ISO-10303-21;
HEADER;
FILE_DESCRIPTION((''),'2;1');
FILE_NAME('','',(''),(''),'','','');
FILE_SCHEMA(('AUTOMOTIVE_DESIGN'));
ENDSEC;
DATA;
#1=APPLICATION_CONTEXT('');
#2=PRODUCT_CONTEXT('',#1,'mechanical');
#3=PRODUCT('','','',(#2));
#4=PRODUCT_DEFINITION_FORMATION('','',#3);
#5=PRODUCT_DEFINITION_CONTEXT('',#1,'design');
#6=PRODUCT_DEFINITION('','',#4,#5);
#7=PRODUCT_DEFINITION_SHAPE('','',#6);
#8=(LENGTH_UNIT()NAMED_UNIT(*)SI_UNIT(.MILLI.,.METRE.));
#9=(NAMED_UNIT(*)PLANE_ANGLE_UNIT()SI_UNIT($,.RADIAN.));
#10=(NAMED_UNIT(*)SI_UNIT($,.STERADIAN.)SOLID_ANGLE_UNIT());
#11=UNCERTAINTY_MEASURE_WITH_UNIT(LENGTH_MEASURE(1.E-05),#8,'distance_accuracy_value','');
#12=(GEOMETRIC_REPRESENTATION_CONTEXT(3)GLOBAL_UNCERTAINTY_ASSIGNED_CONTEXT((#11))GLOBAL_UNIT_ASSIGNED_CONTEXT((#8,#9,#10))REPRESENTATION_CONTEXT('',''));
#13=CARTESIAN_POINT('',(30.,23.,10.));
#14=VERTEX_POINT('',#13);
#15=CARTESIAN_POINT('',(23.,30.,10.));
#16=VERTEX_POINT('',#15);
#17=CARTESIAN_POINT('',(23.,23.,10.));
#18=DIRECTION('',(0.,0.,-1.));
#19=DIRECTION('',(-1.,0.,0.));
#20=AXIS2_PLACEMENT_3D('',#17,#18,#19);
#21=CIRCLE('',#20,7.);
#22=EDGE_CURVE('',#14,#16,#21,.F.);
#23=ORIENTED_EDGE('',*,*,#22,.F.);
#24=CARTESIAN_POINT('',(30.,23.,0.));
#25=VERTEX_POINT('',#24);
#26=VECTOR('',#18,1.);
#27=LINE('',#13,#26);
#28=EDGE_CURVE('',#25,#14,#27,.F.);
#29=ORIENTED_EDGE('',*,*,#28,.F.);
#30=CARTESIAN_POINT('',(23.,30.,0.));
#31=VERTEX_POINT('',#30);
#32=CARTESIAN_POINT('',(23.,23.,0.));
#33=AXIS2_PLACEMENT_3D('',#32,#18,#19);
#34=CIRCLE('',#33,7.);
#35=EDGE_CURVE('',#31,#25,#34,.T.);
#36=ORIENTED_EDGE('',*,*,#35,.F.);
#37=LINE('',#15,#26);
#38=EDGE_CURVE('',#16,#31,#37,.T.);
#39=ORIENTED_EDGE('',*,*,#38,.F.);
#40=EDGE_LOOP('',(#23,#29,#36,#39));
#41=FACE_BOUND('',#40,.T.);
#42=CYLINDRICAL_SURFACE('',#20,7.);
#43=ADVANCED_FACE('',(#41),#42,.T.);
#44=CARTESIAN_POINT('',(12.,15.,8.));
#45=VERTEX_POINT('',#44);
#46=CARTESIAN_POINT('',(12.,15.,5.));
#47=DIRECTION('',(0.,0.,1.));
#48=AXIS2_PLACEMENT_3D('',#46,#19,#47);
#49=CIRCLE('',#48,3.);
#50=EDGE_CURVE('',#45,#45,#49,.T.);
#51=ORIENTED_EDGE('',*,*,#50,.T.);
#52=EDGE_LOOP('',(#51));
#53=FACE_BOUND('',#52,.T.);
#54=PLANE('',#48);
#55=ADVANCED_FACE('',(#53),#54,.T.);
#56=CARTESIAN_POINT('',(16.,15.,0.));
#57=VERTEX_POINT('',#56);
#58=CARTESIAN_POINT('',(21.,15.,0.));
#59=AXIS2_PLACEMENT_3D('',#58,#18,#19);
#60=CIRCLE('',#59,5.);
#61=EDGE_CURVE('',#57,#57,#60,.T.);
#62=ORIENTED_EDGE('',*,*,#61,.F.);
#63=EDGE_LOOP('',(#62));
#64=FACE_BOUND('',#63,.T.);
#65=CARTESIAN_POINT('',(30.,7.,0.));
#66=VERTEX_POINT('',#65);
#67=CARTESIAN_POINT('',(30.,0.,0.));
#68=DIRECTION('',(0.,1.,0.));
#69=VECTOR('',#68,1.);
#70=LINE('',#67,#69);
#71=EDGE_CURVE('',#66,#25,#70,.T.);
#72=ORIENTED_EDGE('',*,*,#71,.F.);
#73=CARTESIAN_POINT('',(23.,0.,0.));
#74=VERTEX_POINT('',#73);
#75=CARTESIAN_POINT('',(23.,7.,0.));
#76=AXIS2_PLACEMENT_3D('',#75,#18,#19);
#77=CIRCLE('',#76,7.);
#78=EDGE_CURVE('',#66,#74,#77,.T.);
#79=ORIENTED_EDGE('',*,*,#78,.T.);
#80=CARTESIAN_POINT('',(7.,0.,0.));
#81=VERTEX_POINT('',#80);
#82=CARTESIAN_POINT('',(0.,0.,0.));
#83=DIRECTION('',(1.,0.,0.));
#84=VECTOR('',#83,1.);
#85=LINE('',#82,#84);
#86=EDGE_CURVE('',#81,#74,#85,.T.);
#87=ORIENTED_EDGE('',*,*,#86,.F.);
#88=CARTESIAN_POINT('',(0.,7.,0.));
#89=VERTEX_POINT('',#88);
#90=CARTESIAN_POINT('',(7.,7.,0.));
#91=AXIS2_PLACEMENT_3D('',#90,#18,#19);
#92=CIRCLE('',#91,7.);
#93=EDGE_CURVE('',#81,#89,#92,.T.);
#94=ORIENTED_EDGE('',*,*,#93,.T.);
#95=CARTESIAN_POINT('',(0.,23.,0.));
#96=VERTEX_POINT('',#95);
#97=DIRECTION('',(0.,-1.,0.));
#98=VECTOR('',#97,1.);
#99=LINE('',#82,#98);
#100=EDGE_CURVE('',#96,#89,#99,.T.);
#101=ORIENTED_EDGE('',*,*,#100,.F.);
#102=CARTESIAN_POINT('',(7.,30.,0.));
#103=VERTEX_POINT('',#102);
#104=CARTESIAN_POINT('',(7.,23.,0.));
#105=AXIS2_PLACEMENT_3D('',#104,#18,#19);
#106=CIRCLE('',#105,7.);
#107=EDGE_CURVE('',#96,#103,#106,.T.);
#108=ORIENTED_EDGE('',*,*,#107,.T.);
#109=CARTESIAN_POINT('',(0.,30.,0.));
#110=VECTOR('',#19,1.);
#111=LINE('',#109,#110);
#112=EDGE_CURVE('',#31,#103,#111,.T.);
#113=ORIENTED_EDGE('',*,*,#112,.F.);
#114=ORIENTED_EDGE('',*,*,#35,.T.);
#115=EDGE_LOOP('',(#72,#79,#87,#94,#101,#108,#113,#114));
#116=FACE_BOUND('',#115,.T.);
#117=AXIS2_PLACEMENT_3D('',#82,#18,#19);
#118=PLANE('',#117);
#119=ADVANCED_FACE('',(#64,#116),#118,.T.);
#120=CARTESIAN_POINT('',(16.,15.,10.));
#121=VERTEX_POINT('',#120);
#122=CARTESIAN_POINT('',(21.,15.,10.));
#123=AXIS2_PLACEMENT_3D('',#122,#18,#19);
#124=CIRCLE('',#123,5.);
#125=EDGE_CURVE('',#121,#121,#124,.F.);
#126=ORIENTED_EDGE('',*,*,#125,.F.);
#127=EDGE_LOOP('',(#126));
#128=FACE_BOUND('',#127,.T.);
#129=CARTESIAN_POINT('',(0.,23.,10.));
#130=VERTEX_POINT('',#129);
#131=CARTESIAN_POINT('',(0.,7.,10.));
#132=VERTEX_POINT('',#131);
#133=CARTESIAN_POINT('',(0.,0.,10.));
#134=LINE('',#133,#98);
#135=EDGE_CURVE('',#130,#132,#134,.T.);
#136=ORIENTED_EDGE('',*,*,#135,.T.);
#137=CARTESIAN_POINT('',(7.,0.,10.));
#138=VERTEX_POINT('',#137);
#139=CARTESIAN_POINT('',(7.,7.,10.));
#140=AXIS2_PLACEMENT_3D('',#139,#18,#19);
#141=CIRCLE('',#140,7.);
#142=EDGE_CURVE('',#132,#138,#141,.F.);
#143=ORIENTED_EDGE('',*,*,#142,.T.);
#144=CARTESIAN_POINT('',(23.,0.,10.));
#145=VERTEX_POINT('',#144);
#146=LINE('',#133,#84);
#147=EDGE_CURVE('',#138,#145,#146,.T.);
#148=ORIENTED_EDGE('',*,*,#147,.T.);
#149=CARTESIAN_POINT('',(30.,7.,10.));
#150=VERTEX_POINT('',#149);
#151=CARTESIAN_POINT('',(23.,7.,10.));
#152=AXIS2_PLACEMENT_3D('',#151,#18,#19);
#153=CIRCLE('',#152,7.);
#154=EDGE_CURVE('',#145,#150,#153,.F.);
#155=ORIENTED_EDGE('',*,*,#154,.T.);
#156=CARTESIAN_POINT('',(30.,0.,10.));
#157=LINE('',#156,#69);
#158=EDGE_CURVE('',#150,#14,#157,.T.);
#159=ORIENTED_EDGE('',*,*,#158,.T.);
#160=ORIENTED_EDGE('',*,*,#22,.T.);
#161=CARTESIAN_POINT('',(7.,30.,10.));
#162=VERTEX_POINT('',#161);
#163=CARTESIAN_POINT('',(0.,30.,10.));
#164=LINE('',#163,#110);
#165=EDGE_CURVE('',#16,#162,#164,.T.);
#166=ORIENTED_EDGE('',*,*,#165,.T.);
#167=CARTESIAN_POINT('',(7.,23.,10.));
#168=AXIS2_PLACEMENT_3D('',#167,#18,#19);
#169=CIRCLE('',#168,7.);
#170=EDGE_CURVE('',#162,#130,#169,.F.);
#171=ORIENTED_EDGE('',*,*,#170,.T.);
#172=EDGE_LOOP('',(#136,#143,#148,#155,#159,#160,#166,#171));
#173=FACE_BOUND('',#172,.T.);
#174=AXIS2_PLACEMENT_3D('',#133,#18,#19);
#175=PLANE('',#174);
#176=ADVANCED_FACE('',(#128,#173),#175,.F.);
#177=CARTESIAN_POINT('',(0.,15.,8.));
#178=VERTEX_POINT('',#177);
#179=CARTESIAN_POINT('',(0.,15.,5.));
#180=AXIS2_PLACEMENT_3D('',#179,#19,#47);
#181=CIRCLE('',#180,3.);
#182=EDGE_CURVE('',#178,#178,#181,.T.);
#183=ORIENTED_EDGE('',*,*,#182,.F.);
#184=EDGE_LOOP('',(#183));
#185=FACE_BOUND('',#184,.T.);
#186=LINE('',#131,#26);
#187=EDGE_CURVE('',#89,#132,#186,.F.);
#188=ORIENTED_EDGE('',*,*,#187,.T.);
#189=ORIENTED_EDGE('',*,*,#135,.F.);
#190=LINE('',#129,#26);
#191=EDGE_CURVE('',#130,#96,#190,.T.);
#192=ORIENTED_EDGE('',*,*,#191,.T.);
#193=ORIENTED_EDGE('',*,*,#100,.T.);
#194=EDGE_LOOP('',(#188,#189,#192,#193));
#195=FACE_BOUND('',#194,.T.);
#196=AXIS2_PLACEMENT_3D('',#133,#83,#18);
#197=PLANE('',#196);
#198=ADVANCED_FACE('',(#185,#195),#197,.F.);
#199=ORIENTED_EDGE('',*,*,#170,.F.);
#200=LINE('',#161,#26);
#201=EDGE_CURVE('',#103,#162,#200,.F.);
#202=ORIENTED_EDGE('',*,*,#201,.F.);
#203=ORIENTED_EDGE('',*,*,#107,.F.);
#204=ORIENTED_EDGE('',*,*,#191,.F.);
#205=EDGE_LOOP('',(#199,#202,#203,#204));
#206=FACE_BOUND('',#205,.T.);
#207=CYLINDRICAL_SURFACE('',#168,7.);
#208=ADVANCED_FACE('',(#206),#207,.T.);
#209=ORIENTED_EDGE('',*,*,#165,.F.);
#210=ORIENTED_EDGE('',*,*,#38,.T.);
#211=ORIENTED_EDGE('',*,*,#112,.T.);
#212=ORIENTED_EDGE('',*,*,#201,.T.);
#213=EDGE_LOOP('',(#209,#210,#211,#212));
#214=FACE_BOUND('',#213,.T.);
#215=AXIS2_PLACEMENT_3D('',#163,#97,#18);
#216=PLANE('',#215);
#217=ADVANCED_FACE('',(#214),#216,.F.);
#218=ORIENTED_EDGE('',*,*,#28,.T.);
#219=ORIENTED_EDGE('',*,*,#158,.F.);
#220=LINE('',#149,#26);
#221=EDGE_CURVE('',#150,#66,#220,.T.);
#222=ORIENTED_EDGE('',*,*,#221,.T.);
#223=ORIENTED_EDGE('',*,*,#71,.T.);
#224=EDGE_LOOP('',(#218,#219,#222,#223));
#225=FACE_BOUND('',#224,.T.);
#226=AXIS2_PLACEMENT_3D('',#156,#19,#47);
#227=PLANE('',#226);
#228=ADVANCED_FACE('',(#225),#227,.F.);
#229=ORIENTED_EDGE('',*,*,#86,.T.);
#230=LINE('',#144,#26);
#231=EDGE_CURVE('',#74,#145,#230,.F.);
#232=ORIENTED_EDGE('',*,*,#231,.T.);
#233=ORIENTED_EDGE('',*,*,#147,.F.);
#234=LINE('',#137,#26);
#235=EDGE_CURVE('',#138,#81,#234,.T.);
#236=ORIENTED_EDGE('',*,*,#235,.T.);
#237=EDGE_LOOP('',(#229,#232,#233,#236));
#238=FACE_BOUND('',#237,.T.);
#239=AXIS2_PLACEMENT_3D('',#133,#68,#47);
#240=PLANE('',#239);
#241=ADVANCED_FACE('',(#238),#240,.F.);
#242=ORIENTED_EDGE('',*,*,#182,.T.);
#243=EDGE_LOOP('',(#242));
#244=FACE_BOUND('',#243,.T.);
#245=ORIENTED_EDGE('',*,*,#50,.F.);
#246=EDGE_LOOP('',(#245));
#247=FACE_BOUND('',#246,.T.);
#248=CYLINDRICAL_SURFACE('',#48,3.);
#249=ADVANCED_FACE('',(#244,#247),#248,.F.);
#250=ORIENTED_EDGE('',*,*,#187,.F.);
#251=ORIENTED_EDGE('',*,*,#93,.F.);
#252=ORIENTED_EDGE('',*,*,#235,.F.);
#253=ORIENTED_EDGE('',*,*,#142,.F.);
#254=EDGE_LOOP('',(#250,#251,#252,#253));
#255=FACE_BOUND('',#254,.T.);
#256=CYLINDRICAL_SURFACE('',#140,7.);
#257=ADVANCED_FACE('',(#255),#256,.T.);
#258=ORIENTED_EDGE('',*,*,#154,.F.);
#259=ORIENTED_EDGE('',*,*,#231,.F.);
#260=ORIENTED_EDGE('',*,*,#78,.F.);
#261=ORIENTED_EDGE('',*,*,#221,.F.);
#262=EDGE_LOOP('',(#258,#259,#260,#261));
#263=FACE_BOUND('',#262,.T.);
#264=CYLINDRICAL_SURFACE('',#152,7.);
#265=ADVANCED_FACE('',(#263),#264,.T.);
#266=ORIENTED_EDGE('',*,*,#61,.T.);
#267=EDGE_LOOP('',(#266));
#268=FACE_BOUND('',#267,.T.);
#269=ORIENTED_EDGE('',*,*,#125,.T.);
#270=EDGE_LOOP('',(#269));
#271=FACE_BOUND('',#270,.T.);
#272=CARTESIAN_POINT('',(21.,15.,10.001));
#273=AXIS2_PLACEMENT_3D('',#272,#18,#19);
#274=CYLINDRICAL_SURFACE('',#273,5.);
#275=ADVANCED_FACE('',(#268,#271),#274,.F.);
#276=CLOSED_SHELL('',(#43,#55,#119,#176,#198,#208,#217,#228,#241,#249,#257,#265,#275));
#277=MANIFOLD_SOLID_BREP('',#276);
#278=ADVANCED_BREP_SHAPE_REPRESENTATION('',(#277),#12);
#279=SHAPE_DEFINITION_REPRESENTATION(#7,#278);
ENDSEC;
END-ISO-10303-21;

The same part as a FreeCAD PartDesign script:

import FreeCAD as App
import Part
import Sketcher
Q = App.Units.Quantity


def edges_at(feature, points):
    """Names of the edges that pass closest to the given points."""
    edges = feature.Shape.Edges
    near = lambda p: min(range(len(edges)), key=lambda i: edges[i].distToShape(Part.Vertex(*p))[0])
    return sorted({f"Edge{near(p) + 1}" for p in points})

doc = App.newDocument("Part")
params = doc.addObject("Spreadsheet::Sheet", "Params")
for row, (alias, value) in enumerate([
    ("sketch1_width", "30 mm"),
    ("pad1_length", "10 mm"),
    ("sketch2_diameter", "10 mm"),
    ("fillet_radius", "7 mm"),
    ("sketch3_diameter", "6 mm"),
    ("pocket2_length", "12 mm"),
], start=1):
    params.set(f"A{row}", alias)
    params.set(f"B{row}", "=" + value)
    params.setAlias(f"B{row}", alias)

body = doc.addObject("PartDesign::Body", "Body")

# Sketch on XY plane
sketch1 = body.newObject("Sketcher::SketchObject", "Sketch")
sketch1.AttachmentSupport = (doc.getObject("XY_Plane"), [""])
sketch1.MapMode = "FlatFace"
sketch1.addGeometry([
    Part.LineSegment(App.Vector(0, 30, 0), App.Vector(0, 0, 0)),
    Part.LineSegment(App.Vector(0, 0, 0), App.Vector(30, 0, 0)),
    Part.LineSegment(App.Vector(30, 0, 0), App.Vector(30, 30, 0)),
    Part.LineSegment(App.Vector(30, 30, 0), App.Vector(0, 30, 0)),
], False)
sketch1.addConstraint([
    Sketcher.Constraint("Coincident", 0, 2, 1, 1),
    Sketcher.Constraint("Coincident", 1, 2, 2, 1),
    Sketcher.Constraint("Coincident", 2, 2, 3, 1),
    Sketcher.Constraint("Coincident", 3, 2, 0, 1),
    Sketcher.Constraint("Vertical", 0),
    Sketcher.Constraint("Horizontal", 1),
    Sketcher.Constraint("Vertical", 2),
    Sketcher.Constraint("Horizontal", 3),
    Sketcher.Constraint("Coincident", 0, 2, -1, 1),
    Sketcher.Constraint("Equal", 3, 0),
    Sketcher.Constraint("DistanceX", 1, 1, 1, 2, Q("30 mm")),
])
sketch1.setExpression("Constraints[10]", "Params.sketch1_width")
pad1 = body.newObject("PartDesign::Pad", "Pad")
pad1.Profile = sketch1
pad1.setExpression("Length", "Params.pad1_length")

# Sketch on XY plane
sketch2 = body.newObject("Sketcher::SketchObject", "Sketch001")
sketch2.AttachmentSupport = (doc.getObject("XY_Plane"), [""])
sketch2.MapMode = "FlatFace"
sketch2.addGeometry(Part.Circle(App.Vector(21, 15, 0), App.Vector(0, 0, 1), 5), False)
sketch2.addConstraint([
    Sketcher.Constraint("Diameter", 0, Q("10 mm")),
    Sketcher.Constraint("DistanceX", -1, 1, 0, 3, Q("21 mm")),
    Sketcher.Constraint("DistanceY", -1, 1, 0, 3, Q("15 mm")),
])
sketch2.setExpression("Constraints[0]", "Params.sketch2_diameter")
pocket1 = body.newObject("PartDesign::Pocket", "Pocket")
pocket1.Profile = sketch2
pocket1.Type = "UpToFirst"
pocket1.Reversed = True
doc.recompute()

fillet = body.newObject("PartDesign::Fillet", "Fillet")
fillet.Base = (pocket1, edges_at(pocket1, [
    (0, 30, 5),
    (30, 30, 5),
    (30, 0, 5),
    (0, 0, 5),
]))
fillet.setExpression("Radius", "Params.fillet_radius")

# Sketch on YZ plane
sketch3 = body.newObject("Sketcher::SketchObject", "Sketch002")
sketch3.AttachmentSupport = (doc.getObject("YZ_Plane"), [""])
sketch3.MapMode = "FlatFace"
sketch3.addGeometry(Part.Circle(App.Vector(15, 5, 0), App.Vector(0, 0, 1), 3), False)
sketch3.addConstraint([
    Sketcher.Constraint("Diameter", 0, Q("6 mm")),
    Sketcher.Constraint("DistanceX", -1, 1, 0, 3, Q("15 mm")),
    Sketcher.Constraint("DistanceY", -1, 1, 0, 3, Q("5 mm")),
])
sketch3.setExpression("Constraints[0]", "Params.sketch3_diameter")
pocket2 = body.newObject("PartDesign::Pocket", "Pocket001")
pocket2.Profile = sketch3
pocket2.setExpression("Length", "Params.pocket2_length")
pocket2.Reversed = True

doc.recompute()
